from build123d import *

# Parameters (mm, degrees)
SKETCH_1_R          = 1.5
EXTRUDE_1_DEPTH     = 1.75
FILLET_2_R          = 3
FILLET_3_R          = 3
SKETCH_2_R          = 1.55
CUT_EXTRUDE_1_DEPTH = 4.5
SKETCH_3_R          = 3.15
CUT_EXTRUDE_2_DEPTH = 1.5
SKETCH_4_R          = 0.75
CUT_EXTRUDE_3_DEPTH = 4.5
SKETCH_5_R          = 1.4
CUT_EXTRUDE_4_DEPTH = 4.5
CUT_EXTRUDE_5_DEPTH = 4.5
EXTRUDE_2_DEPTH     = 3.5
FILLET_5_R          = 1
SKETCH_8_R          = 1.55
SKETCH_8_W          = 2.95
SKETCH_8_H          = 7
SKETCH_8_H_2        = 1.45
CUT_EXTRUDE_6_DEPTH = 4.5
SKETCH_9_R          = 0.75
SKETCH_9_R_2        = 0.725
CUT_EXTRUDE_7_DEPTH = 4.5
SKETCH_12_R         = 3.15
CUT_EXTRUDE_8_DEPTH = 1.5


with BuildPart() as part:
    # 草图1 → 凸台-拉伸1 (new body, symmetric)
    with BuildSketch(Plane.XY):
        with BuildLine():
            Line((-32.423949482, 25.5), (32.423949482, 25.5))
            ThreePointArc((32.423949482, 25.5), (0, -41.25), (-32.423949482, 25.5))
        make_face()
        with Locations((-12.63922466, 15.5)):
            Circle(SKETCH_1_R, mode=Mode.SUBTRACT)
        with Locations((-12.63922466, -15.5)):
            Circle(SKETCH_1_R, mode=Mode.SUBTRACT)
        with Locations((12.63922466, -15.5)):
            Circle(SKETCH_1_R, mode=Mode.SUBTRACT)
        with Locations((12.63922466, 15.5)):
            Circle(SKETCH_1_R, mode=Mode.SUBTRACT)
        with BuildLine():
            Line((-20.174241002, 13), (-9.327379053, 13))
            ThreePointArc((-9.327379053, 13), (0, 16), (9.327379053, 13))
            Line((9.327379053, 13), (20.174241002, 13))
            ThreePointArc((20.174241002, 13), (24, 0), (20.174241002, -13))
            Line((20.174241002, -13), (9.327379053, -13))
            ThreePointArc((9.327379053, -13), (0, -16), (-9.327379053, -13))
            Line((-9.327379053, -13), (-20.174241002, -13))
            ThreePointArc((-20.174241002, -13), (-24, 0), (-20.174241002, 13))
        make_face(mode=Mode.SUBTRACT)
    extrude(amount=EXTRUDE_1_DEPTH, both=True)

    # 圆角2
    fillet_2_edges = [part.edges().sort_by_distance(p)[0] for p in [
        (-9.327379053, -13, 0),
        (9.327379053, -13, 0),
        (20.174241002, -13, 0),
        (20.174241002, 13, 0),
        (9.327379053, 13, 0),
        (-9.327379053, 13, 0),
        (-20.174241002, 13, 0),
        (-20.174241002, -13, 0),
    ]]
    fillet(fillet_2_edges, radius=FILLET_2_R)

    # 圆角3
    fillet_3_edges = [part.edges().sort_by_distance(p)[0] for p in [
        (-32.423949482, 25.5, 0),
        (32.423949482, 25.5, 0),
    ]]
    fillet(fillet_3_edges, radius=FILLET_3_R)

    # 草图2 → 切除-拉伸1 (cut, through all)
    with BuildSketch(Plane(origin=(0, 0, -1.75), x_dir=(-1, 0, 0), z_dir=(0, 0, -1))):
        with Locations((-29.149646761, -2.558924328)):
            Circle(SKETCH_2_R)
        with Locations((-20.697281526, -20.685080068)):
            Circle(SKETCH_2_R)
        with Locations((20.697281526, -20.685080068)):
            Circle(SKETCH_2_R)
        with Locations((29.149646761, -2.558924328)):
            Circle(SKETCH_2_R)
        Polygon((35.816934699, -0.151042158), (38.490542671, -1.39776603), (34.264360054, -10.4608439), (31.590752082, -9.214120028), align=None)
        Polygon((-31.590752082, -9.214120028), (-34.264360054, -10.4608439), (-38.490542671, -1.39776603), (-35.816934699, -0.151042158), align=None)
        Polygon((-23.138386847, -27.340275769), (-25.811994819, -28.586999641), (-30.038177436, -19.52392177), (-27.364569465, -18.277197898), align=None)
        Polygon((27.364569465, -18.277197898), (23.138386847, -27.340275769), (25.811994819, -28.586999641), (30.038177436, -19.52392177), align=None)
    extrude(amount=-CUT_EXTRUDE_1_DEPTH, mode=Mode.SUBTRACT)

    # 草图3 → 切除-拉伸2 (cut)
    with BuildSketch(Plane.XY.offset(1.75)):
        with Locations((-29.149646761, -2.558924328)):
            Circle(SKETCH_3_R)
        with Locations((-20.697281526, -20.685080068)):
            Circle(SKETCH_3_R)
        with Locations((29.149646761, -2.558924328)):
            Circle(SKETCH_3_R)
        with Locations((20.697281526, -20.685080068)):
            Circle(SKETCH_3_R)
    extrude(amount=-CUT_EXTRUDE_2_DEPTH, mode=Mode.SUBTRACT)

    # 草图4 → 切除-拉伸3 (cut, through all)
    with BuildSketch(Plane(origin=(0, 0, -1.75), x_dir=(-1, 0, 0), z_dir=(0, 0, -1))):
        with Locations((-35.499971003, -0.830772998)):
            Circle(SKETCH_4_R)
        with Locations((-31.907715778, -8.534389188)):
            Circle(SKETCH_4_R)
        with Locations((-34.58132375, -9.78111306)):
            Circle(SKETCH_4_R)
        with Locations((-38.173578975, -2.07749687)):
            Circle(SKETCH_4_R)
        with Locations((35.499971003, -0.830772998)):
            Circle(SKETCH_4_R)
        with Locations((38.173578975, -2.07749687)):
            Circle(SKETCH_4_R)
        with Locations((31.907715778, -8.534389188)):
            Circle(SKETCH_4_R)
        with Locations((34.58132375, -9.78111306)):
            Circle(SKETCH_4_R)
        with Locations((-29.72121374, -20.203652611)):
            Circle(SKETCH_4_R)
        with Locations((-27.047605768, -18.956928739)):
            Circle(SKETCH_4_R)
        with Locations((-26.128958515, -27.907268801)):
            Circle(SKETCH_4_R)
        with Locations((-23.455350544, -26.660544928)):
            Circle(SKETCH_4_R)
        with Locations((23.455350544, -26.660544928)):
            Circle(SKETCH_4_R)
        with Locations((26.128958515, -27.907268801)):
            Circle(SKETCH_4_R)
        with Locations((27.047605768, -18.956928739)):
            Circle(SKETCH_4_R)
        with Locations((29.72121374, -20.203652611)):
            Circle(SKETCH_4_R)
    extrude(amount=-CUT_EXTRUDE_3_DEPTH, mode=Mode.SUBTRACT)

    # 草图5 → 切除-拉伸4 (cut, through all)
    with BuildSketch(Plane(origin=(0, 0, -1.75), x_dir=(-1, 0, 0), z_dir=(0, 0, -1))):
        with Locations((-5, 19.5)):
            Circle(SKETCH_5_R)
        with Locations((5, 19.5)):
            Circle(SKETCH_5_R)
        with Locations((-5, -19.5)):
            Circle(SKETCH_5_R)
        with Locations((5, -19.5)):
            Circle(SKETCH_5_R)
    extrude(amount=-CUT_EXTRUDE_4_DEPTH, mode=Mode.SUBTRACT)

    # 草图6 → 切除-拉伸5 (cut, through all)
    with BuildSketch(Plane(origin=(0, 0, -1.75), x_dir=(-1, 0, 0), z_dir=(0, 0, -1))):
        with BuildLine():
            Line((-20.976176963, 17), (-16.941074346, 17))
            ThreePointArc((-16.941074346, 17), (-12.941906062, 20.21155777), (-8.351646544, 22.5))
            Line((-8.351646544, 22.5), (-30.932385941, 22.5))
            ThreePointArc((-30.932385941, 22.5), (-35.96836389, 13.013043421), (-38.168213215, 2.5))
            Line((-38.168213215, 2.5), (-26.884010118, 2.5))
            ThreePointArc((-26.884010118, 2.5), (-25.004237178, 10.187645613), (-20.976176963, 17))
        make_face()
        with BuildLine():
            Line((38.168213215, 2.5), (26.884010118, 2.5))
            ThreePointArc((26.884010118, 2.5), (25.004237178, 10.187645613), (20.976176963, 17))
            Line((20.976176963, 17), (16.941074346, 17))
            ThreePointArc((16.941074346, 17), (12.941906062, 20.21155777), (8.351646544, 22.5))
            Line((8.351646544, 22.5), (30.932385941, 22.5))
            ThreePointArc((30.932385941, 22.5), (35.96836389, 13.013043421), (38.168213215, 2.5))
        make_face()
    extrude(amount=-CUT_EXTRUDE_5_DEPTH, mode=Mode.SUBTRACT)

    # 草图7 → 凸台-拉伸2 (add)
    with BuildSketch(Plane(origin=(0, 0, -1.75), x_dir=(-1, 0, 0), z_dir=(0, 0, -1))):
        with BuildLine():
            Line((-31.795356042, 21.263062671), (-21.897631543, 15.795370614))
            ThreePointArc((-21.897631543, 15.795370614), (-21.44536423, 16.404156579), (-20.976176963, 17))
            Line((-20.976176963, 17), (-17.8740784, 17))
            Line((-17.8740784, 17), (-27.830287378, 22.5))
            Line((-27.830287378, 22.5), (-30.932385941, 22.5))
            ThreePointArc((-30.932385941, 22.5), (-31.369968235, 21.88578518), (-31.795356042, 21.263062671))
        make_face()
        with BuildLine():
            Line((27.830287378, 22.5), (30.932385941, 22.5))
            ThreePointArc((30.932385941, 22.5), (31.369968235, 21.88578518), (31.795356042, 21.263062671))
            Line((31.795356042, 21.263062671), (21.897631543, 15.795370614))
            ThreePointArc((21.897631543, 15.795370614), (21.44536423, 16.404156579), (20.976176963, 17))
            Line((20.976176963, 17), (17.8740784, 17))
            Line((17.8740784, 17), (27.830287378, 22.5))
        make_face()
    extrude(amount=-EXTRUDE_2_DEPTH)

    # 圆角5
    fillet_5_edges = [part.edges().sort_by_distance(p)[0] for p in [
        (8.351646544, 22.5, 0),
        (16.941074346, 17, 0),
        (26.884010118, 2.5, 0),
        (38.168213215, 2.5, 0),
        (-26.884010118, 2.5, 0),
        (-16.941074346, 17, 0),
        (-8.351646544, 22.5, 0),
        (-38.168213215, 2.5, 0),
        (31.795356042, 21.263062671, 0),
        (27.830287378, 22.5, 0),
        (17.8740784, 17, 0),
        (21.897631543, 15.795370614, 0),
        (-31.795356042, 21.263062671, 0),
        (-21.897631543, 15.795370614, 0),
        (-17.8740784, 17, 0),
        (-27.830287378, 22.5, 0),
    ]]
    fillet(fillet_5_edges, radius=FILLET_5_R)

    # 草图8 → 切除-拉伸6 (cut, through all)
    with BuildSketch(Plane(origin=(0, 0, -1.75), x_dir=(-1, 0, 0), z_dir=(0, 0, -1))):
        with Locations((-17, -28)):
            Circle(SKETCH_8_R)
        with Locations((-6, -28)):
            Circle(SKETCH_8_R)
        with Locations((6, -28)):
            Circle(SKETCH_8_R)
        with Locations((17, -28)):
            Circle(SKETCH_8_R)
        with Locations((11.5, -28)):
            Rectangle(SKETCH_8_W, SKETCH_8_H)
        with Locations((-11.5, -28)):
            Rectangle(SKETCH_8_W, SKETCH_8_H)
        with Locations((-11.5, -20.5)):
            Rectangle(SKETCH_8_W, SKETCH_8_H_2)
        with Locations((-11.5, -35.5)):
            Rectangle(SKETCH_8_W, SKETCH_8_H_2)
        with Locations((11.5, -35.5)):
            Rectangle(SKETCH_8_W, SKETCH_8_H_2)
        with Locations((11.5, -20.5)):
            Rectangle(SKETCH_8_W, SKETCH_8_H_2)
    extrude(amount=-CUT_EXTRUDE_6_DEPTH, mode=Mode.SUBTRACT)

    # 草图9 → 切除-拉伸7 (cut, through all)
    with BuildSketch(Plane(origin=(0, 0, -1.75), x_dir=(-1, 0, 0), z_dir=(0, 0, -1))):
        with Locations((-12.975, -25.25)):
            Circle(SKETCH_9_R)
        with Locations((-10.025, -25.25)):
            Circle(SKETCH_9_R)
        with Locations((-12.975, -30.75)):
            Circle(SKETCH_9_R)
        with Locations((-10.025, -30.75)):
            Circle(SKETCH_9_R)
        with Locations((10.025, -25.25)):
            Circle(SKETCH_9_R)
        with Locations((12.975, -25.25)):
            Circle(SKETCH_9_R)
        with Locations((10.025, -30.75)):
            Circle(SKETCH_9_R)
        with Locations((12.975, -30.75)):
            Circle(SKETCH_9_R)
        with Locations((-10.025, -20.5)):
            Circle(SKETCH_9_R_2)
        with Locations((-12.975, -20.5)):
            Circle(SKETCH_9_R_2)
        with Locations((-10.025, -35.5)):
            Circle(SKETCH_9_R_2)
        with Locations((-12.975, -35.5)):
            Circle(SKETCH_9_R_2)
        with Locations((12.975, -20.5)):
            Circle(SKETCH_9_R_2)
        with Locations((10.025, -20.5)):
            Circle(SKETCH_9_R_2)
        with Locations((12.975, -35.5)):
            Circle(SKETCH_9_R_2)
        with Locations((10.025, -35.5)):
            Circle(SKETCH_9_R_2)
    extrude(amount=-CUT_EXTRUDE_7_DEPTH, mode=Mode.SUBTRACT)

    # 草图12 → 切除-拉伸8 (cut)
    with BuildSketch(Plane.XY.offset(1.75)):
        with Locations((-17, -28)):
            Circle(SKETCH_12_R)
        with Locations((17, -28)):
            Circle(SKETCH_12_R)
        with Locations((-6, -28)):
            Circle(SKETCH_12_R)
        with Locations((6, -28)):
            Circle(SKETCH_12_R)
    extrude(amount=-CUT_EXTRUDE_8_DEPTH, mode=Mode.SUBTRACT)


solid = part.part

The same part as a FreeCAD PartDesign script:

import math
import FreeCAD as App
import Part
import Sketcher

V = App.Vector
Q = App.Units.Quantity


def edges_at(feature, points):
    """Names of the edges that pass closest to the given points."""
    edges = feature.Shape.Edges
    near = lambda p: min(range(len(edges)), key=lambda i: edges[i].distToShape(Part.Vertex(*p))[0])
    return sorted({f"Edge{near(p) + 1}" for p in points})


def add_polygon(sketch, points):
    """Adds a closed chain of lines whose ends are joined by coincident constraints."""
    first, n = sketch.GeometryCount, len(points)
    for a, b in zip(points, points[1:] + points[:1]):
        sketch.addGeometry(Part.LineSegment(App.Vector(*a, 0), App.Vector(*b, 0)), False)
    for i in range(n):
        sketch.addConstraint(Sketcher.Constraint("Coincident", first + i, 2, first + (i + 1) % n, 1))

doc = App.newDocument("Part")
body = doc.addObject("PartDesign::Body", "Body")

# Sketch on XY plane
sketch1 = body.newObject("Sketcher::SketchObject", "Sketch")
sketch1.AttachmentSupport = (doc.getObject("XY_Plane"), [""])
sketch1.MapMode = "FlatFace"
sketch1.addGeometry(Part.LineSegment(V(32.4, 25.5, 0), V(-32.4, 25.5, 0)), False)
sketch1.addGeometry(Part.ArcOfCircle(Part.Circle(V(0, 0, 0), V(0, 0, 1), 41.2), math.radians(142), math.radians(398)), False)
sketch1.addGeometry(Part.Circle(V(12.6, -15.5, 0), V(0, 0, 1), 1.5), False)
sketch1.addGeometry(Part.Circle(V(-12.6, -15.5, 0), V(0, 0, 1), 1.5), False)
sketch1.addGeometry(Part.Circle(V(12.6, 15.5, 0), V(0, 0, 1), 1.5), False)
sketch1.addGeometry(Part.LineSegment(V(-20.2, 13, 0), V(-9.3, 13, 0)), False)
sketch1.addGeometry(Part.ArcOfCircle(Part.Circle(V(0, 0, 0), V(0, 0, 1), 16), math.radians(54), math.radians(126)), False)
sketch1.addGeometry(Part.LineSegment(V(9.3, 13, 0), V(20.2, 13, 0)), False)
sketch1.addGeometry(Part.ArcOfCircle(Part.Circle(V(0, 0, 0), V(0, 0, 1), 24), math.radians(-33), math.radians(33)), False)
sketch1.addGeometry(Part.LineSegment(V(20.2, -13, 0), V(9.3, -13, 0)), False)
sketch1.addGeometry(Part.ArcOfCircle(Part.Circle(V(0, 0, 0), V(0, 0, 1), 16), math.radians(-126), math.radians(-54)), False)
sketch1.addGeometry(Part.LineSegment(V(-9.3, -13, 0), V(-20.2, -13, 0)), False)
sketch1.addGeometry(Part.ArcOfCircle(Part.Circle(V(0, 0, 0), V(0, 0, 1), 24), math.radians(147), math.radians(213)), False)
sketch1.addGeometry(Part.Circle(V(-12.6, 15.5, 0), V(0, 0, 1), 1.5), False)
sketch1.addConstraint(Sketcher.Constraint("Coincident", 0, 1, 1, 2))
sketch1.addConstraint(Sketcher.Constraint("Coincident", 1, 1, 0, 2))
sketch1.addConstraint(Sketcher.Constraint("Coincident", 5, 2, 6, 2))
sketch1.addConstraint(Sketcher.Constraint("Coincident", 6, 1, 7, 1))
sketch1.addConstraint(Sketcher.Constraint("Coincident", 7, 2, 8, 2))
sketch1.addConstraint(Sketcher.Constraint("Coincident", 8, 1, 9, 1))
sketch1.addConstraint(Sketcher.Constraint("Coincident", 9, 2, 10, 2))
sketch1.addConstraint(Sketcher.Constraint("Coincident", 10, 1, 11, 1))
sketch1.addConstraint(Sketcher.Constraint("Coincident", 11, 2, 12, 2))
sketch1.addConstraint(Sketcher.Constraint("Coincident", 12, 1, 5, 1))
sketch1.addConstraint(Sketcher.Constraint("Horizontal", 0))
sketch1.addConstraint(Sketcher.Constraint("Horizontal", 5))
sketch1.addConstraint(Sketcher.Constraint("Horizontal", 7))
sketch1.addConstraint(Sketcher.Constraint("Horizontal", 9))
sketch1.addConstraint(Sketcher.Constraint("Horizontal", 11))
sketch1.addConstraint(Sketcher.Constraint("Coincident", 1, 3, -1, 1))
sketch1.addConstraint(Sketcher.Constraint("Coincident", 6, 3, -1, 1))
sketch1.addConstraint(Sketcher.Constraint("Coincident", 8, 3, -1, 1))
sketch1.addConstraint(Sketcher.Constraint("Coincident", 10, 3, -1, 1))
sketch1.addConstraint(Sketcher.Constraint("Coincident", 12, 3, -1, 1))
sketch1.addConstraint(Sketcher.Constraint("Equal", 2, 3))
sketch1.addConstraint(Sketcher.Constraint("Equal", 3, 4))
sketch1.addConstraint(Sketcher.Constraint("Equal", 6, 10))
sketch1.addConstraint(Sketcher.Constraint("Equal", 8, 12))
sketch1.addConstraint(Sketcher.Constraint("Equal", 4, 13))
sketch1.addConstraint(Sketcher.Constraint("Symmetric", 3, 3, 4, 3, -1, 1))
sketch1.addConstraint(Sketcher.Constraint("Symmetric", 2, 3, 13, 3, -1, 1))
sketch1.addConstraint(Sketcher.Constraint("Symmetric", 2, 3, 3, 3, -2))
sketch1.addConstraint(Sketcher.Constraint("Horizontal", 5, 2, 6, 1))
sketch1.addConstraint(Sketcher.Constraint("Horizontal", 9, 2, 10, 1))
sketch1.addConstraint(Sketcher.Constraint("Vertical", 7, 2, 8, 1))
sketch1.addConstraint(Sketcher.Constraint("Diameter", 2, 3.0))
sketch1.addConstraint(Sketcher.Constraint("Radius", 6, 16.0))
sketch1.addConstraint(Sketcher.Constraint("Radius", 8, 24.0))
sketch1.addConstraint(Sketcher.Constraint("Radius", 1, 41.25))
sketch1.addConstraint(Sketcher.Constraint("DistanceY", -1, 1, 5, 2, 13.0))
sketch1.addConstraint(Sketcher.Constraint("DistanceY", 2, 3, 4, 3, 31.0))
sketch1.addConstraint(Sketcher.Constraint("DistanceY", 4, 3, 0, 1, 10.0))
sketch1.addConstraint(Sketcher.Constraint("DistanceX", 3, 3, 2, 3, 25.278449))
pad1 = body.newObject("PartDesign::Pad", "Pad")
pad1.Profile = sketch1
pad1.Length = 3.5
pad1.Midplane = True
doc.recompute()

fillet = body.newObject("PartDesign::Fillet", "Fillet")
fillet.Base = (pad1, edges_at(pad1, [
    (-9.327, -13, 0),
    (9.327, -13, 0),
    (20.174, -13, 0),
    (20.174, 13, 0),
    (9.327, 13, 0),
    (-9.327, 13, 0),
    (-20.174, 13, 0),
    (-20.174, -13, 0),
]))
fillet.Radius = 3
doc.recompute()

fillet2 = body.newObject("PartDesign::Fillet", "Fillet001")
fillet2.Base = (fillet, edges_at(fillet, [(-32.424, 25.5, 0), (32.424, 25.5, 0)]))
fillet2.Radius = 3

# Sketch on XY plane
sketch2 = body.newObject("Sketcher::SketchObject", "Sketch001")
sketch2.AttachmentSupport = (doc.getObject("XY_Plane"), [""])
sketch2.MapMode = "FlatFace"
sketch2.AttachmentOffset = App.Placement(V(0, 0, -1.75), App.Rotation())
sketch2.addGeometry(Part.Circle(V(29.1, -2.6, 0), V(0, 0, 1), 1.6), False)  # 0
sketch2.addGeometry(Part.Circle(V(20.7, -20.7, 0), V(0, 0, 1), 1.6), False)  # 1
sketch2.addGeometry(Part.Circle(V(-20.7, -20.7, 0), V(0, 0, 1), 1.6), False)  # 2
sketch2.addGeometry(Part.Circle(V(-29.1, -2.6, 0), V(0, 0, 1), 1.6), False)  # 3
add_polygon(sketch2, [(-38.5, -1.4), (-35.8, -0.2), (-31.6, -9.2), (-34.3, -10.5)])  # lines 4-7
add_polygon(sketch2, [(34.3, -10.5), (31.6, -9.2), (35.8, -0.2), (38.5, -1.4)])  # lines 8-11
add_polygon(sketch2, [(25.8, -28.6), (23.1, -27.3), (27.4, -18.3), (30, -19.5)])  # lines 12-15
add_polygon(sketch2, [(-27.4, -18.3), (-23.1, -27.3), (-25.8, -28.6), (-30, -19.5)])  # lines 16-19
sketch2.addConstraint(Sketcher.Constraint("Equal", 0, 1))
sketch2.addConstraint(Sketcher.Constraint("Equal", 1, 2))
sketch2.addConstraint(Sketcher.Constraint("Equal", 2, 3))
sketch2.addConstraint(Sketcher.Constraint("Symmetric", 1, 3, 2, 3, -2))
sketch2.addConstraint(Sketcher.Constraint("Symmetric", 0, 3, 3, 3, -2))
sketch2.addConstraint(Sketcher.Constraint("Symmetric", 5, 2, 8, 2, -2))
sketch2.addConstraint(Sketcher.Constraint("Symmetric", 4, 2, 9, 2, -2))
sketch2.addConstraint(Sketcher.Constraint("Symmetric", 7, 2, 10, 2, -2))
sketch2.addConstraint(Sketcher.Constraint("Symmetric", 6, 2, 11, 2, -2))
sketch2.addConstraint(Sketcher.Constraint("Symmetric", 12, 2, 16, 2, -2))
sketch2.addConstraint(Sketcher.Constraint("Symmetric", 15, 2, 17, 2, -2))
sketch2.addConstraint(Sketcher.Constraint("Symmetric", 14, 2, 18, 2, -2))
sketch2.addConstraint(Sketcher.Constraint("Symmetric", 13, 2, 19, 2, -2))
sketch2.addConstraint(Sketcher.Constraint("Perpendicular", 4, 5))
sketch2.addConstraint(Sketcher.Constraint("Perpendicular", 5, 6))
sketch2.addConstraint(Sketcher.Constraint("Perpendicular", 6, 7))
sketch2.addConstraint(Sketcher.Constraint("Perpendicular", 11, 12))
sketch2.addConstraint(Sketcher.Constraint("Perpendicular", 12, 13))
sketch2.addConstraint(Sketcher.Constraint("Perpendicular", 13, 14))
sketch2.addConstraint(Sketcher.Constraint("Perpendicular", 14, 15))
sketch2.addConstraint(Sketcher.Constraint("Equal", 10, 12))
sketch2.addConstraint(Sketcher.Constraint("Equal", 11, 13))
sketch2.addConstraint(Sketcher.Constraint("Diameter", 0, 3.1))
sketch2.addConstraint(Sketcher.Constraint("Angle", 4, Q("25 deg")))
sketch2.addConstraint(Sketcher.Constraint("Distance", 5, 10.0))
sketch2.addConstraint(Sketcher.Constraint("Distance", 4, 2.95))
sketch2.addConstraint(Sketcher.Constraint("DistanceY", 15, 2, -1, 1, 28.587))
sketch2.addConstraint(Sketcher.Constraint("DistanceX", 5, 2, 0, 3, 60.740399))
sketch2.addConstraint(Sketcher.Constraint("DistanceY", 14, 2, 8, 2, 10.309802))
sketch2.addConstraint(Sketcher.Constraint("DistanceX", -1, 1, 1, 3, 20.697282))
sketch2.addConstraint(Sketcher.Constraint("DistanceY", 1, 3, -1, 1, 20.68508))
sketch2.addConstraint(Sketcher.Constraint("DistanceX", 6, 2, -1, 1, 34.26436))
sketch2.addConstraint(Sketcher.Constraint("DistanceX", -1, 1, 13, 2, 27.364569))
sketch2.addConstraint(Sketcher.Constraint("DistanceY", 6, 2, 3, 3, 7.90192))
pocket1 = body.newObject("PartDesign::Pocket", "Pocket")
pocket1.Profile = sketch2
pocket1.Type = "ThroughAll"
pocket1.Reversed = True

# Sketch on XY plane
sketch3 = body.newObject("Sketcher::SketchObject", "Sketch002")
sketch3.AttachmentSupport = (doc.getObject("XY_Plane"), [""])
sketch3.MapMode = "FlatFace"
sketch3.AttachmentOffset = App.Placement(V(0, 0, 1.75), App.Rotation())
sketch3.addGeometry(Part.Circle(V(-29.1, -2.6, 0), V(0, 0, 1), 3.1), False)
sketch3.addGeometry(Part.Circle(V(-20.7, -20.7, 0), V(0, 0, 1), 3.1), False)
sketch3.addGeometry(Part.Circle(V(29.1, -2.6, 0), V(0, 0, 1), 3.1), False)
sketch3.addGeometry(Part.Circle(V(20.7, -20.7, 0), V(0, 0, 1), 3.1), False)
sketch3.addConstraint(Sketcher.Constraint("Equal", 0, 1))
sketch3.addConstraint(Sketcher.Constraint("Equal", 1, 2))
sketch3.addConstraint(Sketcher.Constraint("Equal", 2, 3))
sketch3.addConstraint(Sketcher.Constraint("Symmetric", 0, 3, 2, 3, -2))
sketch3.addConstraint(Sketcher.Constraint("Symmetric", 1, 3, 3, 3, -2))
sketch3.addConstraint(Sketcher.Constraint("Diameter", 0, 6.3))
sketch3.addConstraint(Sketcher.Constraint("DistanceX", 1, 3, -1, 1, 20.697282))
sketch3.addConstraint(Sketcher.Constraint("DistanceY", 1, 3, -1, 1, 20.68508))
sketch3.addConstraint(Sketcher.Constraint("DistanceX", 1, 3, 2, 3, 49.846928))
sketch3.addConstraint(Sketcher.Constraint("DistanceY", 0, 3, -1, 1, 2.558924))
pocket2 = body.newObject("PartDesign::Pocket", "Pocket001")
pocket2.Profile = sketch3
pocket2.Length = 1.5

# Sketch on XY plane
sketch4 = body.newObject("Sketcher::SketchObject", "Sketch003")
sketch4.AttachmentSupport = (doc.getObject("XY_Plane"), [""])
sketch4.MapMode = "FlatFace"
sketch4.AttachmentOffset = App.Placement(V(0, 0, -1.75), App.Rotation())
sketch4.addGeometry(Part.Circle(V(35.5, -0.8, 0), V(0, 0, 1), 0.8), False)
sketch4.addGeometry(Part.Circle(V(31.9, -8.5, 0), V(0, 0, 1), 0.8), False)
sketch4.addGeometry(Part.Circle(V(34.6, -9.8, 0), V(0, 0, 1), 0.8), False)
sketch4.addGeometry(Part.Circle(V(38.2, -2.1, 0), V(0, 0, 1), 0.8), False)
sketch4.addGeometry(Part.Circle(V(-35.5, -0.8, 0), V(0, 0, 1), 0.8), False)
sketch4.addGeometry(Part.Circle(V(-38.2, -2.1, 0), V(0, 0, 1), 0.8), False)
sketch4.addGeometry(Part.Circle(V(-31.9, -8.5, 0), V(0, 0, 1), 0.8), False)
sketch4.addGeometry(Part.Circle(V(-34.6, -9.8, 0), V(0, 0, 1), 0.8), False)
sketch4.addGeometry(Part.Circle(V(29.7, -20.2, 0), V(0, 0, 1), 0.8), False)
sketch4.addGeometry(Part.Circle(V(27, -19, 0), V(0, 0, 1), 0.8), False)
sketch4.addGeometry(Part.Circle(V(26.1, -27.9, 0), V(0, 0, 1), 0.8), False)
sketch4.addGeometry(Part.Circle(V(23.5, -26.7, 0), V(0, 0, 1), 0.8), False)
sketch4.addGeometry(Part.Circle(V(-23.5, -26.7, 0), V(0, 0, 1), 0.8), False)
sketch4.addGeometry(Part.Circle(V(-26.1, -27.9, 0), V(0, 0, 1), 0.8), False)
sketch4.addGeometry(Part.Circle(V(-27, -19, 0), V(0, 0, 1), 0.8), False)
sketch4.addGeometry(Part.Circle(V(-29.7, -20.2, 0), V(0, 0, 1), 0.8), False)
sketch4.addConstraint(Sketcher.Constraint("Equal", 0, 1))
sketch4.addConstraint(Sketcher.Constraint("Equal", 1, 2))
sketch4.addConstraint(Sketcher.Constraint("Equal", 2, 3))
sketch4.addConstraint(Sketcher.Constraint("Equal", 3, 4))
sketch4.addConstraint(Sketcher.Constraint("Equal", 4, 5))
sketch4.addConstraint(Sketcher.Constraint("Equal", 5, 6))
sketch4.addConstraint(Sketcher.Constraint("Equal", 6, 7))
sketch4.addConstraint(Sketcher.Constraint("Equal", 7, 8))
sketch4.addConstraint(Sketcher.Constraint("Equal", 8, 9))
sketch4.addConstraint(Sketcher.Constraint("Equal", 9, 10))
sketch4.addConstraint(Sketcher.Constraint("Equal", 10, 11))
sketch4.addConstraint(Sketcher.Constraint("Equal", 11, 12))
sketch4.addConstraint(Sketcher.Constraint("Equal", 12, 13))
sketch4.addConstraint(Sketcher.Constraint("Equal", 13, 14))
sketch4.addConstraint(Sketcher.Constraint("Equal", 14, 15))
sketch4.addConstraint(Sketcher.Constraint("Symmetric", 0, 3, 4, 3, -2))
sketch4.addConstraint(Sketcher.Constraint("Symmetric", 3, 3, 5, 3, -2))
sketch4.addConstraint(Sketcher.Constraint("Symmetric", 1, 3, 6, 3, -2))
sketch4.addConstraint(Sketcher.Constraint("Symmetric", 2, 3, 7, 3, -2))
sketch4.addConstraint(Sketcher.Constraint("Symmetric", 11, 3, 12, 3, -2))
sketch4.addConstraint(Sketcher.Constraint("Symmetric", 10, 3, 13, 3, -2))
sketch4.addConstraint(Sketcher.Constraint("Symmetric", 9, 3, 14, 3, -2))
sketch4.addConstraint(Sketcher.Constraint("Symmetric", 8, 3, 15, 3, -2))
sketch4.addConstraint(Sketcher.Constraint("Diameter", 0, 1.5))
sketch4.addConstraint(Sketcher.Constraint("DistanceX", 12, 3, 11, 3, 46.910701))
sketch4.addConstraint(Sketcher.Constraint("DistanceX", -1, 1, 0, 3, 35.499971))
sketch4.addConstraint(Sketcher.Constraint("DistanceY", 1, 3, -1, 1, 8.534389))
sketch4.addConstraint(Sketcher.Constraint("DistanceX", -1, 1, 3, 3, 38.173579))
sketch4.addConstraint(Sketcher.Constraint("DistanceY", 9, 3, -1, 1, 18.956929))
sketch4.addConstraint(Sketcher.Constraint("DistanceX", -1, 1, 10, 3, 26.128959))
sketch4.addConstraint(Sketcher.Constraint("DistanceY", 10, 3, -1, 1, 27.907269))
sketch4.addConstraint(Sketcher.Constraint("DistanceY", 2, 3, 0, 3, 8.95034))
sketch4.addConstraint(Sketcher.Constraint("DistanceX", 6, 3, 1, 3, 63.815432))
sketch4.addConstraint(Sketcher.Constraint("DistanceX", 6, 3, 2, 3, 66.48904))
sketch4.addConstraint(Sketcher.Constraint("DistanceX", 8, 3, 2, 3, 4.86011))
sketch4.addConstraint(Sketcher.Constraint("DistanceY", 8, 3, 2, 3, 10.42254))
sketch4.addConstraint(Sketcher.Constraint("DistanceX", 9, 3, 1, 3, 4.86011))
sketch4.addConstraint(Sketcher.Constraint("DistanceY", 9, 3, 3, 3, 16.879432))
sketch4.addConstraint(Sketcher.Constraint("DistanceY", 11, 3, 2, 3, 16.879432))
sketch4.addConstraint(Sketcher.Constraint("DistanceY", 12, 3, 5, 3, 24.583048))
pocket3 = body.newObject("PartDesign::Pocket", "Pocket002")
pocket3.Profile = sketch4
pocket3.Type = "ThroughAll"
pocket3.Reversed = True

# Sketch on XY plane
sketch5 = body.newObject("Sketcher::SketchObject", "Sketch004")
sketch5.AttachmentSupport = (doc.getObject("XY_Plane"), [""])
sketch5.MapMode = "FlatFace"
sketch5.AttachmentOffset = App.Placement(V(0, 0, -1.75), App.Rotation())
sketch5.addGeometry(Part.Circle(V(5, 19.5, 0), V(0, 0, 1), 1.4), False)
sketch5.addGeometry(Part.Circle(V(-5, 19.5, 0), V(0, 0, 1), 1.4), False)
sketch5.addGeometry(Part.Circle(V(5, -19.5, 0), V(0, 0, 1), 1.4), False)
sketch5.addGeometry(Part.Circle(V(-5, -19.5, 0), V(0, 0, 1), 1.4), False)
sketch5.addConstraint(Sketcher.Constraint("Equal", 0, 1))
sketch5.addConstraint(Sketcher.Constraint("Equal", 1, 2))
sketch5.addConstraint(Sketcher.Constraint("Equal", 2, 3))
sketch5.addConstraint(Sketcher.Constraint("Symmetric", 1, 3, 2, 3, -1, 1))
sketch5.addConstraint(Sketcher.Constraint("Symmetric", 0, 3, 3, 3, -1, 1))
sketch5.addConstraint(Sketcher.Constraint("Symmetric", 0, 3, 1, 3, -2))
sketch5.addConstraint(Sketcher.Constraint("Diameter", 0, 2.8))
sketch5.addConstraint(Sketcher.Constraint("DistanceX", -1, 1, 0, 3, 5.0))
sketch5.addConstraint(Sketcher.Constraint("DistanceY", 2, 3, 0, 3, 39.0))
pocket4 = body.newObject("PartDesign::Pocket", "Pocket003")
pocket4.Profile = sketch5
pocket4.Type = "ThroughAll"
pocket4.Reversed = True

# Sketch on XY plane
sketch6 = body.newObject("Sketcher::SketchObject", "Sketch005")
sketch6.AttachmentSupport = (doc.getObject("XY_Plane"), [""])
sketch6.MapMode = "FlatFace"
sketch6.AttachmentOffset = App.Placement(V(0, 0, -1.75), App.Rotation())
sketch6.addGeometry(Part.LineSegment(V(21, 17, 0), V(16.9, 17, 0)), False)
sketch6.addGeometry(Part.ArcOfCircle(Part.Circle(V(0, 0, 0), V(0, 0, 1), 24), math.radians(45), math.radians(70)), False)
sketch6.addGeometry(Part.LineSegment(V(8.4, 22.5, 0), V(30.9, 22.5, 0)), False)
sketch6.addGeometry(Part.ArcOfCircle(Part.Circle(V(0, 0, 0), V(0, 0, 1), 38.3), math.radians(4), math.radians(36)), False)
sketch6.addGeometry(Part.LineSegment(V(38.2, 2.5, 0), V(26.9, 2.5, 0)), False)
sketch6.addGeometry(Part.ArcOfCircle(Part.Circle(V(0, 0, 0), V(0, 0, 1), 27), math.radians(5), math.radians(39)), False)
sketch6.addGeometry(Part.LineSegment(V(-26.9, 2.5, 0), V(-38.2, 2.5, 0)), False)
sketch6.addGeometry(Part.ArcOfCircle(Part.Circle(V(0, 0, 0), V(0, 0, 1), 38.3), math.radians(144), math.radians(176)), False)
sketch6.addGeometry(Part.LineSegment(V(-30.9, 22.5, 0), V(-8.4, 22.5, 0)), False)
sketch6.addGeometry(Part.ArcOfCircle(Part.Circle(V(0, 0, 0), V(0, 0, 1), 24), math.radians(110), math.radians(135)), False)
sketch6.addGeometry(Part.LineSegment(V(-16.9, 17, 0), V(-21, 17, 0)), False)
sketch6.addGeometry(Part.ArcOfCircle(Part.Circle(V(0, 0, 0), V(0, 0, 1), 27), math.radians(141), math.radians(175)), False)
sketch6.addConstraint(Sketcher.Constraint("Coincident", 0, 2, 1, 1))
sketch6.addConstraint(Sketcher.Constraint("Coincident", 1, 2, 2, 1))
sketch6.addConstraint(Sketcher.Constraint("Coincident", 2, 2, 3, 2))
sketch6.addConstraint(Sketcher.Constraint("Coincident", 3, 1, 4, 1))
sketch6.addConstraint(Sketcher.Constraint("Coincident", 4, 2, 5, 1))
sketch6.addConstraint(Sketcher.Constraint("Coincident", 5, 2, 0, 1))
sketch6.addConstraint(Sketcher.Constraint("Coincident", 6, 2, 7, 2))
sketch6.addConstraint(Sketcher.Constraint("Coincident", 7, 1, 8, 1))
sketch6.addConstraint(Sketcher.Constraint("Coincident", 8, 2, 9, 1))
sketch6.addConstraint(Sketcher.Constraint("Coincident", 9, 2, 10, 1))
sketch6.addConstraint(Sketcher.Constraint("Coincident", 10, 2, 11, 1))
sketch6.addConstraint(Sketcher.Constraint("Coincident", 11, 2, 6, 1))
sketch6.addConstraint(Sketcher.Constraint("Horizontal", 0))
sketch6.addConstraint(Sketcher.Constraint("Horizontal", 2))
sketch6.addConstraint(Sketcher.Constraint("Horizontal", 4))
sketch6.addConstraint(Sketcher.Constraint("Horizontal", 6))
sketch6.addConstraint(Sketcher.Constraint("Horizontal", 8))
sketch6.addConstraint(Sketcher.Constraint("Horizontal", 10))
sketch6.addConstraint(Sketcher.Constraint("Coincident", 1, 3, -1, 1))
sketch6.addConstraint(Sketcher.Constraint("Coincident", 3, 3, -1, 1))
sketch6.addConstraint(Sketcher.Constraint("Coincident", 5, 3, -1, 1))
sketch6.addConstraint(Sketcher.Constraint("Coincident", 7, 3, -1, 1))
sketch6.addConstraint(Sketcher.Constraint("Coincident", 9, 3, -1, 1))
sketch6.addConstraint(Sketcher.Constraint("Coincident", 11, 3, -1, 1))
sketch6.addConstraint(Sketcher.Constraint("Equal", 3, 7))
sketch6.addConstraint(Sketcher.Constraint("Equal", 1, 9))
sketch6.addConstraint(Sketcher.Constraint("Equal", 5, 11))
sketch6.addConstraint(Sketcher.Constraint("Horizontal", 4, 2, 6, 2))
sketch6.addConstraint(Sketcher.Constraint("Horizontal", 2, 2, 7, 1))
sketch6.addConstraint(Sketcher.Constraint("Horizontal", 5, 2, 9, 2))
sketch6.addConstraint(Sketcher.Constraint("Radius", 1, 24.0))
sketch6.addConstraint(Sketcher.Constraint("Radius", 5, 27.0))
sketch6.addConstraint(Sketcher.Constraint("Radius", 3, 38.25))
sketch6.addConstraint(Sketcher.Constraint("DistanceY", -1, 1, 0, 2, 17.0))
sketch6.addConstraint(Sketcher.Constraint("DistanceY", 3, 1, 2, 2, 20.0))
sketch6.addConstraint(Sketcher.Constraint("DistanceY", -1, 1, 1, 2, 22.5))
pocket5 = body.newObject("PartDesign::Pocket", "Pocket004")
pocket5.Profile = sketch6
pocket5.Type = "ThroughAll"
pocket5.Reversed = True

# Sketch on XY plane
sketch7 = body.newObject("Sketcher::SketchObject", "Sketch006")
sketch7.AttachmentSupport = (doc.getObject("XY_Plane"), [""])
sketch7.MapMode = "FlatFace"
sketch7.AttachmentOffset = App.Placement(V(0, 0, -1.75), App.Rotation())
sketch7.addGeometry(Part.LineSegment(V(31.8, 21.3, 0), V(21.9, 15.8, 0)), False)
sketch7.addGeometry(Part.ArcOfCircle(Part.Circle(V(0, 0, 0), V(0, 0, 1), 27), math.radians(35.8), math.radians(39.02)), False)
sketch7.addGeometry(Part.LineSegment(V(21, 17, 0), V(17.9, 17, 0)), False)
sketch7.addGeometry(Part.LineSegment(V(17.9, 17, 0), V(27.8, 22.5, 0)), False)
sketch7.addGeometry(Part.LineSegment(V(27.8, 22.5, 0), V(30.9, 22.5, 0)), False)
sketch7.addGeometry(Part.ArcOfCircle(Part.Circle(V(0, 0, 0), V(0, 0, 1), 38.2), math.radians(33.77), math.radians(36.03)), False)
sketch7.addGeometry(Part.LineSegment(V(-30.9, 22.5, 0), V(-27.8, 22.5, 0)), False)
sketch7.addGeometry(Part.LineSegment(V(-27.8, 22.5, 0), V(-17.9, 17, 0)), False)
sketch7.addGeometry(Part.LineSegment(V(-17.9, 17, 0), V(-21, 17, 0)), False)
sketch7.addGeometry(Part.ArcOfCircle(Part.Circle(V(0, 0, 0), V(0, 0, 1), 27), math.radians(140.98), math.radians(144.2)), False)
sketch7.addGeometry(Part.LineSegment(V(-21.9, 15.8, 0), V(-31.8, 21.3, 0)), False)
sketch7.addGeometry(Part.ArcOfCircle(Part.Circle(V(0, 0, 0), V(0, 0, 1), 38.2), math.radians(143.97), math.radians(146.23)), False)
sketch7.addConstraint(Sketcher.Constraint("Coincident", 0, 2, 1, 1))
sketch7.addConstraint(Sketcher.Constraint("Coincident", 1, 2, 2, 1))
sketch7.addConstraint(Sketcher.Constraint("Coincident", 2, 2, 3, 1))
sketch7.addConstraint(Sketcher.Constraint("Coincident", 3, 2, 4, 1))
sketch7.addConstraint(Sketcher.Constraint("Coincident", 4, 2, 5, 2))
sketch7.addConstraint(Sketcher.Constraint("Coincident", 5, 1, 0, 1))
sketch7.addConstraint(Sketcher.Constraint("Coincident", 6, 2, 7, 1))
sketch7.addConstraint(Sketcher.Constraint("Coincident", 7, 2, 8, 1))
sketch7.addConstraint(Sketcher.Constraint("Coincident", 8, 2, 9, 1))
sketch7.addConstraint(Sketcher.Constraint("Coincident", 9, 2, 10, 1))
sketch7.addConstraint(Sketcher.Constraint("Coincident", 10, 2, 11, 2))
sketch7.addConstraint(Sketcher.Constraint("Coincident", 11, 1, 6, 1))
sketch7.addConstraint(Sketcher.Constraint("Horizontal", 2))
sketch7.addConstraint(Sketcher.Constraint("Horizontal", 4))
sketch7.addConstraint(Sketcher.Constraint("Horizontal", 6))
sketch7.addConstraint(Sketcher.Constraint("Horizontal", 8))
sketch7.addConstraint(Sketcher.Constraint("Coincident", 1, 3, -1, 1))
sketch7.addConstraint(Sketcher.Constraint("Coincident", 5, 3, -1, 1))
sketch7.addConstraint(Sketcher.Constraint("Coincident", 9, 3, -1, 1))
sketch7.addConstraint(Sketcher.Constraint("Coincident", 11, 3, -1, 1))
sketch7.addConstraint(Sketcher.Constraint("Equal", 1, 9))
sketch7.addConstraint(Sketcher.Constraint("Equal", 5, 11))
sketch7.addConstraint(Sketcher.Constraint("Symmetric", 3, 2, 6, 2, -2))
sketch7.addConstraint(Sketcher.Constraint("Symmetric", 2, 2, 7, 2, -2))
sketch7.addConstraint(Sketcher.Constraint("Parallel", 0, 3))
sketch7.addConstraint(Sketcher.Constraint("Parallel", 7, 10))
sketch7.addConstraint(Sketcher.Constraint("Horizontal", 0, 2, 9, 2))
sketch7.addConstraint(Sketcher.Constraint("Equal", 2, 4))
sketch7.addConstraint(Sketcher.Constraint("Radius", 1, 26.999999))
sketch7.addConstraint(Sketcher.Constraint("Radius", 5, 38.249999))
sketch7.addConstraint(Sketcher.Constraint("DistanceY", -1, 1, 1, 2, 17.0))
sketch7.addConstraint(Sketcher.Constraint("DistanceY", -1, 1, 3, 2, 22.5))
sketch7.addConstraint(Sketcher.Constraint("DistanceX", 2, 2, 2, 1, 3.102099))
sketch7.addConstraint(Sketcher.Constraint("DistanceX", -1, 1, 0, 2, 21.897632))
pad2 = body.newObject("PartDesign::Pad", "Pad001")
pad2.Profile = sketch7
pad2.Length = 3.5
doc.recompute()

fillet3 = body.newObject("PartDesign::Fillet", "Fillet002")
fillet3.Base = (pad2, edges_at(pad2, [
    (8.352, 22.5, 0),
    (16.941, 17, 0),
    (26.884, 2.5, 0),
    (38.168, 2.5, 0),
    (-26.884, 2.5, 0),
    (-16.941, 17, 0),
    (-8.352, 22.5, 0),
    (-38.168, 2.5, 0),
    (31.795, 21.263, 0),
    (27.83, 22.5, 0),
    (17.874, 17, 0),
    (21.898, 15.795, 0),
    (-31.795, 21.263, 0),
    (-21.898, 15.795, 0),
    (-17.874, 17, 0),
    (-27.83, 22.5, 0),
]))
fillet3.Radius = 1

# Sketch on XY plane
sketch8 = body.newObject("Sketcher::SketchObject", "Sketch007")
sketch8.AttachmentSupport = (doc.getObject("XY_Plane"), [""])
sketch8.MapMode = "FlatFace"
sketch8.AttachmentOffset = App.Placement(V(0, 0, -1.75), App.Rotation())
sketch8.addGeometry(Part.Circle(V(17, -28, 0), V(0, 0, 1), 1.6), False)  # 0
sketch8.addGeometry(Part.Circle(V(6, -28, 0), V(0, 0, 1), 1.6), False)  # 1
sketch8.addGeometry(Part.Circle(V(-6, -28, 0), V(0, 0, 1), 1.6), False)  # 2
sketch8.addGeometry(Part.Circle(V(-17, -28, 0), V(0, 0, 1), 1.6), False)  # 3
add_polygon(sketch8, [(-10, -24.5), (-10, -31.5), (-13, -31.5), (-13, -24.5)])  # lines 4-7
add_polygon(sketch8, [(13, -24.5), (13, -31.5), (10, -31.5), (10, -24.5)])  # lines 8-11
add_polygon(sketch8, [(13, -19.8), (13, -21.2), (10, -21.2), (10, -19.8)])  # lines 12-15
add_polygon(sketch8, [(13, -34.8), (13, -36.2), (10, -36.2), (10, -34.8)])  # lines 16-19
add_polygon(sketch8, [(-10, -34.8), (-10, -36.2), (-13, -36.2), (-13, -34.8)])  # lines 20-23
add_polygon(sketch8, [(-10, -19.8), (-10, -21.2), (-13, -21.2), (-13, -19.8)])  # lines 24-27
sketch8.addConstraint(Sketcher.Constraint("Vertical", 4))
sketch8.addConstraint(Sketcher.Constraint("Horizontal", 5))
sketch8.addConstraint(Sketcher.Constraint("Vertical", 6))
sketch8.addConstraint(Sketcher.Constraint("Horizontal", 7))
sketch8.addConstraint(Sketcher.Constraint("Vertical", 8))
sketch8.addConstraint(Sketcher.Constraint("Horizontal", 9))
sketch8.addConstraint(Sketcher.Constraint("Vertical", 10))
sketch8.addConstraint(Sketcher.Constraint("Horizontal", 11))
sketch8.addConstraint(Sketcher.Constraint("Vertical", 12))
sketch8.addConstraint(Sketcher.Constraint("Horizontal", 13))
sketch8.addConstraint(Sketcher.Constraint("Vertical", 14))
sketch8.addConstraint(Sketcher.Constraint("Horizontal", 15))
sketch8.addConstraint(Sketcher.Constraint("Vertical", 16))
sketch8.addConstraint(Sketcher.Constraint("Horizontal", 17))
sketch8.addConstraint(Sketcher.Constraint("Vertical", 18))
sketch8.addConstraint(Sketcher.Constraint("Horizontal", 19))
sketch8.addConstraint(Sketcher.Constraint("Vertical", 20))
sketch8.addConstraint(Sketcher.Constraint("Horizontal", 21))
sketch8.addConstraint(Sketcher.Constraint("Vertical", 22))
sketch8.addConstraint(Sketcher.Constraint("Horizontal", 23))
sketch8.addConstraint(Sketcher.Constraint("Vertical", 24))
sketch8.addConstraint(Sketcher.Constraint("Horizontal", 25))
sketch8.addConstraint(Sketcher.Constraint("Vertical", 26))
sketch8.addConstraint(Sketcher.Constraint("Horizontal", 27))
sketch8.addConstraint(Sketcher.Constraint("Equal", 0, 1))
sketch8.addConstraint(Sketcher.Constraint("Equal", 1, 2))
sketch8.addConstraint(Sketcher.Constraint("Equal", 2, 3))
sketch8.addConstraint(Sketcher.Constraint("Symmetric", 1, 3, 2, 3, -2))
sketch8.addConstraint(Sketcher.Constraint("Symmetric", 0, 3, 3, 3, -2))
sketch8.addConstraint(Sketcher.Constraint("Symmetric", 5, 2, 8, 2, -2))
sketch8.addConstraint(Sketcher.Constraint("Symmetric", 7, 2, 10, 2, -2))
sketch8.addConstraint(Sketcher.Constraint("Symmetric", 17, 2, 20, 2, -2))
sketch8.addConstraint(Sketcher.Constraint("Symmetric", 19, 2, 22, 2, -2))
sketch8.addConstraint(Sketcher.Constraint("Symmetric", 13, 2, 24, 2, -2))
sketch8.addConstraint(Sketcher.Constraint("Symmetric", 15, 2, 26, 2, -2))
sketch8.addConstraint(Sketcher.Constraint("Horizontal", 0, 3, 1, 3))
sketch8.addConstraint(Sketcher.Constraint("Vertical", 11, 2, 12, 2))
sketch8.addConstraint(Sketcher.Constraint("Vertical", 10, 2, 13, 2))
sketch8.addConstraint(Sketcher.Constraint("Vertical", 15, 2, 16, 2))
sketch8.addConstraint(Sketcher.Constraint("Vertical", 14, 2, 17, 2))
sketch8.addConstraint(Sketcher.Constraint("Equal", 14, 16))
sketch8.addConstraint(Sketcher.Constraint("Diameter", 0, 3.1))
sketch8.addConstraint(Sketcher.Constraint("DistanceY", 4, 2, 4, 1, 7.0))
sketch8.addConstraint(Sketcher.Constraint("DistanceX", -1, 1, 0, 3, 17.0))
sketch8.addConstraint(Sketcher.Constraint("DistanceY", 0, 3, -1, 1, 28.0))
sketch8.addConstraint(Sketcher.Constraint("DistanceX", -1, 1, 1, 3, 6.0))
sketch8.addConstraint(Sketcher.Constraint("DistanceX", 4, 2, 8, 2, 23.0))
sketch8.addConstraint(Sketcher.Constraint("DistanceX", 5, 2, 5, 1, 2.95))
sketch8.addConstraint(Sketcher.Constraint("DistanceY", 12, 2, 12, 1, 1.45))
sketch8.addConstraint(Sketcher.Constraint("DistanceY", 4, 2, -1, 1, 31.5))
sketch8.addConstraint(Sketcher.Constraint("DistanceY", 12, 2, -1, 1, 21.225))
sketch8.addConstraint(Sketcher.Constraint("DistanceY", 16, 2, -1, 1, 36.225))
pocket6 = body.newObject("PartDesign::Pocket", "Pocket005")
pocket6.Profile = sketch8
pocket6.Type = "ThroughAll"
pocket6.Reversed = True

# Sketch on XY plane
sketch9 = body.newObject("Sketcher::SketchObject", "Sketch008")
sketch9.AttachmentSupport = (doc.getObject("XY_Plane"), [""])
sketch9.MapMode = "FlatFace"
sketch9.AttachmentOffset = App.Placement(V(0, 0, -1.75), App.Rotation())
sketch9.addGeometry(Part.Circle(V(13, -25.2, 0), V(0, 0, 1), 0.8), False)
sketch9.addGeometry(Part.Circle(V(10, -25.2, 0), V(0, 0, 1), 0.8), False)
sketch9.addGeometry(Part.Circle(V(13, -30.8, 0), V(0, 0, 1), 0.8), False)
sketch9.addGeometry(Part.Circle(V(10, -30.8, 0), V(0, 0, 1), 0.8), False)
sketch9.addGeometry(Part.Circle(V(-10, -25.2, 0), V(0, 0, 1), 0.8), False)
sketch9.addGeometry(Part.Circle(V(-13, -25.2, 0), V(0, 0, 1), 0.8), False)
sketch9.addGeometry(Part.Circle(V(-10, -30.8, 0), V(0, 0, 1), 0.8), False)
sketch9.addGeometry(Part.Circle(V(-13, -30.8, 0), V(0, 0, 1), 0.8), False)
sketch9.addGeometry(Part.Circle(V(10, -20.5, 0), V(0, 0, 1), 0.7), False)
sketch9.addGeometry(Part.Circle(V(13, -20.5, 0), V(0, 0, 1), 0.7), False)
sketch9.addGeometry(Part.Circle(V(10, -35.5, 0), V(0, 0, 1), 0.7), False)
sketch9.addGeometry(Part.Circle(V(13, -35.5, 0), V(0, 0, 1), 0.7), False)
sketch9.addGeometry(Part.Circle(V(-13, -20.5, 0), V(0, 0, 1), 0.7), False)
sketch9.addGeometry(Part.Circle(V(-10, -20.5, 0), V(0, 0, 1), 0.7), False)
sketch9.addGeometry(Part.Circle(V(-13, -35.5, 0), V(0, 0, 1), 0.7), False)
sketch9.addGeometry(Part.Circle(V(-10, -35.5, 0), V(0, 0, 1), 0.7), False)
sketch9.addConstraint(Sketcher.Constraint("Equal", 0, 1))
sketch9.addConstraint(Sketcher.Constraint("Equal", 1, 2))
sketch9.addConstraint(Sketcher.Constraint("Equal", 2, 3))
sketch9.addConstraint(Sketcher.Constraint("Equal", 3, 4))
sketch9.addConstraint(Sketcher.Constraint("Equal", 4, 5))
sketch9.addConstraint(Sketcher.Constraint("Equal", 5, 6))
sketch9.addConstraint(Sketcher.Constraint("Equal", 6, 7))
sketch9.addConstraint(Sketcher.Constraint("Equal", 8, 9))
sketch9.addConstraint(Sketcher.Constraint("Equal", 9, 10))
sketch9.addConstraint(Sketcher.Constraint("Equal", 10, 11))
sketch9.addConstraint(Sketcher.Constraint("Equal", 11, 12))
sketch9.addConstraint(Sketcher.Constraint("Equal", 12, 13))
sketch9.addConstraint(Sketcher.Constraint("Equal", 13, 14))
sketch9.addConstraint(Sketcher.Constraint("Equal", 14, 15))
sketch9.addConstraint(Sketcher.Constraint("Symmetric", 1, 3, 4, 3, -2))
sketch9.addConstraint(Sketcher.Constraint("Symmetric", 0, 3, 5, 3, -2))
sketch9.addConstraint(Sketcher.Constraint("Symmetric", 3, 3, 6, 3, -2))
sketch9.addConstraint(Sketcher.Constraint("Symmetric", 2, 3, 7, 3, -2))
sketch9.addConstraint(Sketcher.Constraint("Symmetric", 9, 3, 12, 3, -2))
sketch9.addConstraint(Sketcher.Constraint("Symmetric", 8, 3, 13, 3, -2))
sketch9.addConstraint(Sketcher.Constraint("Symmetric", 11, 3, 14, 3, -2))
sketch9.addConstraint(Sketcher.Constraint("Symmetric", 10, 3, 15, 3, -2))
sketch9.addConstraint(Sketcher.Constraint("Horizontal", 0, 3, 1, 3))
sketch9.addConstraint(Sketcher.Constraint("Horizontal", 2, 3, 3, 3))
sketch9.addConstraint(Sketcher.Constraint("Horizontal", 8, 3, 9, 3))
sketch9.addConstraint(Sketcher.Constraint("Horizontal", 10, 3, 11, 3))
sketch9.addConstraint(Sketcher.Constraint("Vertical", 0, 3, 2, 3))
sketch9.addConstraint(Sketcher.Constraint("Vertical", 1, 3, 3, 3))
sketch9.addConstraint(Sketcher.Constraint("Vertical", 3, 3, 8, 3))
sketch9.addConstraint(Sketcher.Constraint("Vertical", 2, 3, 9, 3))
sketch9.addConstraint(Sketcher.Constraint("Vertical", 8, 3, 10, 3))
sketch9.addConstraint(Sketcher.Constraint("Vertical", 9, 3, 11, 3))
sketch9.addConstraint(Sketcher.Constraint("Diameter", 0, 1.5))
sketch9.addConstraint(Sketcher.Constraint("Diameter", 8, 1.45))
sketch9.addConstraint(Sketcher.Constraint("DistanceX", 4, 3, 0, 3, 23.0))
sketch9.addConstraint(Sketcher.Constraint("DistanceY", 10, 3, 8, 3, 15.0))
sketch9.addConstraint(Sketcher.Constraint("DistanceY", 8, 3, -1, 1, 20.5))
sketch9.addConstraint(Sketcher.Constraint("DistanceY", 2, 3, 0, 3, 5.5))
sketch9.addConstraint(Sketcher.Constraint("DistanceY", 0, 3, -1, 1, 25.25))
sketch9.addConstraint(Sketcher.Constraint("DistanceX", 1, 3, 0, 3, 2.95))
pocket7 = body.newObject("PartDesign::Pocket", "Pocket006")
pocket7.Profile = sketch9
pocket7.Type = "ThroughAll"
pocket7.Reversed = True

# Sketch on XY plane
sketch10 = body.newObject("Sketcher::SketchObject", "Sketch009")
sketch10.AttachmentSupport = (doc.getObject("XY_Plane"), [""])
sketch10.MapMode = "FlatFace"
sketch10.AttachmentOffset = App.Placement(V(0, 0, 1.75), App.Rotation())
sketch10.addGeometry(Part.Circle(V(-17, -28, 0), V(0, 0, 1), 3.1), False)
sketch10.addGeometry(Part.Circle(V(17, -28, 0), V(0, 0, 1), 3.1), False)
sketch10.addGeometry(Part.Circle(V(-6, -28, 0), V(0, 0, 1), 3.1), False)
sketch10.addGeometry(Part.Circle(V(6, -28, 0), V(0, 0, 1), 3.1), False)
sketch10.addConstraint(Sketcher.Constraint("Equal", 0, 1))
sketch10.addConstraint(Sketcher.Constraint("Equal", 1, 2))
sketch10.addConstraint(Sketcher.Constraint("Equal", 2, 3))
sketch10.addConstraint(Sketcher.Constraint("Symmetric", 0, 3, 1, 3, -2))
sketch10.addConstraint(Sketcher.Constraint("Symmetric", 2, 3, 3, 3, -2))
sketch10.addConstraint(Sketcher.Constraint("Horizontal", 1, 3, 2, 3))
sketch10.addConstraint(Sketcher.Constraint("Diameter", 0, 6.3))
sketch10.addConstraint(Sketcher.Constraint("DistanceX", 0, 3, -1, 1, 17.0))
sketch10.addConstraint(Sketcher.Constraint("DistanceY", 0, 3, -1, 1, 28.0))
sketch10.addConstraint(Sketcher.Constraint("DistanceX", 2, 3, -1, 1, 6.0))
pocket8 = body.newObject("PartDesign::Pocket", "Pocket007")
pocket8.Profile = sketch10
pocket8.Length = 1.5

doc.recompute()
